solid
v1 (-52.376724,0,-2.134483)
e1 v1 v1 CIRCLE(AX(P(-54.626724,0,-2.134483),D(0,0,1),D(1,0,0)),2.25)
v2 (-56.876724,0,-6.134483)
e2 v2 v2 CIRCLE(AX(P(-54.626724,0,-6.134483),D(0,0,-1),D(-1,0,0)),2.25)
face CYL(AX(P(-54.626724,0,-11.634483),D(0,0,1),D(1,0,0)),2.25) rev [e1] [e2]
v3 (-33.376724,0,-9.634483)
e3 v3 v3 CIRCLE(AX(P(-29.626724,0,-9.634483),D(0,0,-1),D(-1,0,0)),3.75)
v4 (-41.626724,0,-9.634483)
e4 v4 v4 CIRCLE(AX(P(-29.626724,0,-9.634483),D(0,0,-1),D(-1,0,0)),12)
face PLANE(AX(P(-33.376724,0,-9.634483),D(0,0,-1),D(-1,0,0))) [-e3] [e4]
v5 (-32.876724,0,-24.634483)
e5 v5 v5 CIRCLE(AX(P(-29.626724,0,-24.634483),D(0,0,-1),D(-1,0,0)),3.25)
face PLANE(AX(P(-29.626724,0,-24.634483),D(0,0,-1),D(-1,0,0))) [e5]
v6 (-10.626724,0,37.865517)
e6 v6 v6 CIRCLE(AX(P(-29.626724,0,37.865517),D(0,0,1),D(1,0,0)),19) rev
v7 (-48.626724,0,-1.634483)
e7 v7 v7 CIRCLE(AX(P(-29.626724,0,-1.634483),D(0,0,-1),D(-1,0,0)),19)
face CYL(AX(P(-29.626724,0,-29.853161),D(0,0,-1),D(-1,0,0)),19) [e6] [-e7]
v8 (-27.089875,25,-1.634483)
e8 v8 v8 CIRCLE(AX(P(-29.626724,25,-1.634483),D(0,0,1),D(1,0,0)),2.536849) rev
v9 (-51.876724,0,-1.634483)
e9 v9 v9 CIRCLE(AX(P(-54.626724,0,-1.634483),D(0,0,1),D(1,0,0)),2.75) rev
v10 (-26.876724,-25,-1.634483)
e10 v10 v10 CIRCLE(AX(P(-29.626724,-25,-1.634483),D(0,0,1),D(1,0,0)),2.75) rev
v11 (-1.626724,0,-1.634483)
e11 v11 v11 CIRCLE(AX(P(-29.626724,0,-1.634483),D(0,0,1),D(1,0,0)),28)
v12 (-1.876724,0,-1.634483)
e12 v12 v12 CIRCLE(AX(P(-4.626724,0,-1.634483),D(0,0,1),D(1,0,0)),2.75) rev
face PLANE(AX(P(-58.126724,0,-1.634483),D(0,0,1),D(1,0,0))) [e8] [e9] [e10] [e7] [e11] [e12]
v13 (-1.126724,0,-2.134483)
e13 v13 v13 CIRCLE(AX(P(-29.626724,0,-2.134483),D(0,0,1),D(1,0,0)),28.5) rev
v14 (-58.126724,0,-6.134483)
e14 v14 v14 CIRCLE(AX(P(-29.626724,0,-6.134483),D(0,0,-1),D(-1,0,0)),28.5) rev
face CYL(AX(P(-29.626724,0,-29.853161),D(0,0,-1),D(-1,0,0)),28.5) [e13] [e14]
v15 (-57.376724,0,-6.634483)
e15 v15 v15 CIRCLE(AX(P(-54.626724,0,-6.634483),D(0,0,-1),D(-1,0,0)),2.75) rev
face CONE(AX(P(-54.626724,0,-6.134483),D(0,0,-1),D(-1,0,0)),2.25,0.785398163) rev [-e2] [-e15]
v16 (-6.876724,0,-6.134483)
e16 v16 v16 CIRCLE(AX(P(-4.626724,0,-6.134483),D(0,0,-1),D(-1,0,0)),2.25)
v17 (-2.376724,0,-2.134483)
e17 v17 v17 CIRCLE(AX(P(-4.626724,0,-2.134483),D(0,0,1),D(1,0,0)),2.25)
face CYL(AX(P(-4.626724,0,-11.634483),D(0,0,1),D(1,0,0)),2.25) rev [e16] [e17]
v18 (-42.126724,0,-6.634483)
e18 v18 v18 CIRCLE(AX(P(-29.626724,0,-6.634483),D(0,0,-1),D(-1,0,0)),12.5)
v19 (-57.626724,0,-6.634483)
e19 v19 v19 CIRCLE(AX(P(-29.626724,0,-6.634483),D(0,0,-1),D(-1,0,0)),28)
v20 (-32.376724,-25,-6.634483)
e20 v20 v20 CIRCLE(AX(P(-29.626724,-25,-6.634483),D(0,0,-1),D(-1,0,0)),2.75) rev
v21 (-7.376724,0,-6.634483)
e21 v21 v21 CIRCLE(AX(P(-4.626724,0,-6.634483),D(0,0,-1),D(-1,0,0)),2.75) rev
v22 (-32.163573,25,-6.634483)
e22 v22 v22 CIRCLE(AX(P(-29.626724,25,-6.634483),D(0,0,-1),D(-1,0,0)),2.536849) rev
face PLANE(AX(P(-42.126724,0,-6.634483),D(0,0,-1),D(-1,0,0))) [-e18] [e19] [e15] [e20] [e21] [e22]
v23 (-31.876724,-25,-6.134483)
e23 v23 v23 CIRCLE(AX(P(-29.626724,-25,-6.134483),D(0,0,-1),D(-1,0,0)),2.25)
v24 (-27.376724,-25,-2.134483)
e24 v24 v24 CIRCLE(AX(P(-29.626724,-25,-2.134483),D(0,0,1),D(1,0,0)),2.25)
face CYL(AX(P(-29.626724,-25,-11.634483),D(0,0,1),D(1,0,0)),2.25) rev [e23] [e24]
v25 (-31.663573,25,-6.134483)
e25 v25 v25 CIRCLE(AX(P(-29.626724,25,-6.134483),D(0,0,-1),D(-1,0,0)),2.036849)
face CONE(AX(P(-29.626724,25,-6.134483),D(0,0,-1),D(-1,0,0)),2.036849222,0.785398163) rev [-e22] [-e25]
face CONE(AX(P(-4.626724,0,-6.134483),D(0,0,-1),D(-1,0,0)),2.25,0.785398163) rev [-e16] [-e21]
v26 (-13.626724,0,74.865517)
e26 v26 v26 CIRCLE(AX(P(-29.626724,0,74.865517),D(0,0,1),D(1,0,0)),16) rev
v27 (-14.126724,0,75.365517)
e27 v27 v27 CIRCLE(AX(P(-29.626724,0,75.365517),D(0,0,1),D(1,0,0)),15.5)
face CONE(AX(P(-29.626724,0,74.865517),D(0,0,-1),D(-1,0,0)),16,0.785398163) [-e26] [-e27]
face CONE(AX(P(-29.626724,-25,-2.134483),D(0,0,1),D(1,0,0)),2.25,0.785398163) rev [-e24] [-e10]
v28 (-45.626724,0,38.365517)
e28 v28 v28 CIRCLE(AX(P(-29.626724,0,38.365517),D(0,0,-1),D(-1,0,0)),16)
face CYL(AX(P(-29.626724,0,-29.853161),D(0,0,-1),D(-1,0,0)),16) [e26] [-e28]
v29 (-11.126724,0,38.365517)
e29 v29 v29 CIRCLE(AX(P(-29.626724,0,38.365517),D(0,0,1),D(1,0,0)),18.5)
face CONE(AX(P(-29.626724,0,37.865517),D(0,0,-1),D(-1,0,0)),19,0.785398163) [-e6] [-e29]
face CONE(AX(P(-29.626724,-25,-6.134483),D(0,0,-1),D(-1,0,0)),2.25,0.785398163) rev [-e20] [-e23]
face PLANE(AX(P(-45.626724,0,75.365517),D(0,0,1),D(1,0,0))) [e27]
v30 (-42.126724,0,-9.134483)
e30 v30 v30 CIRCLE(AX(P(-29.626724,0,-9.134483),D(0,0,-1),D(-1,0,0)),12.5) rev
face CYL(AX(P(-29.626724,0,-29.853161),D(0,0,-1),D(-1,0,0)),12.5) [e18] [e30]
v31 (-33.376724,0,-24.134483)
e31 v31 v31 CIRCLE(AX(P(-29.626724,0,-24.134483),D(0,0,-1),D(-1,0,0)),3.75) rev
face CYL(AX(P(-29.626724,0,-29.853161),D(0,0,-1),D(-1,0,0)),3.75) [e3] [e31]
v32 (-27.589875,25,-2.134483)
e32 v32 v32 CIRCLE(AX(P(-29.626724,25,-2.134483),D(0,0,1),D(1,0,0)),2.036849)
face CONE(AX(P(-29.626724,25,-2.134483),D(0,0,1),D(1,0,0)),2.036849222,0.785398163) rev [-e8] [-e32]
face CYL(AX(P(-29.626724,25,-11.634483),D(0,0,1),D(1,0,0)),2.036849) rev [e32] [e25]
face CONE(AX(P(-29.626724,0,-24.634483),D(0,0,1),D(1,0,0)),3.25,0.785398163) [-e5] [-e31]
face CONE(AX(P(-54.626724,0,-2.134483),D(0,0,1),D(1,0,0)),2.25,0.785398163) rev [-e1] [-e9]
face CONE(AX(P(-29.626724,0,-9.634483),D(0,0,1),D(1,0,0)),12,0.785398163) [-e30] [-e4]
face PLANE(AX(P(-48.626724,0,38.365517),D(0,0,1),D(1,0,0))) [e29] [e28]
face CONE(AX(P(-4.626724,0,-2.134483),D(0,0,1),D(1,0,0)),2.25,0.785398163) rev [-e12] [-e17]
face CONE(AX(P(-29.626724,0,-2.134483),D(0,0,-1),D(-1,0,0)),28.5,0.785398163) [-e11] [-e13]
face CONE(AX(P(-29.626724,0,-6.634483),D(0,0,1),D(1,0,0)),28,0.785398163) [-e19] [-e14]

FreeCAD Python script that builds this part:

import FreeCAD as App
import Part
import Sketcher
from FreeCAD import Vector
Q = App.Units.Quantity


def edges_at(feature, points):
    """Names of the edges that pass closest to the given points."""
    edges = feature.Shape.Edges
    near = lambda p: min(range(len(edges)), key=lambda i: edges[i].distToShape(Part.Vertex(*p))[0])
    return sorted({f"Edge{near(p) + 1}" for p in points})

doc = App.newDocument("Part")
body = doc.addObject("PartDesign::Body", "Body")

# Sketch on XZ plane
sketch1 = body.newObject("Sketcher::SketchObject", "Sketch")
sketch1.AttachmentSupport = (doc.getObject("XZ_Plane"), [""])
sketch1.MapMode = "FlatFace"
sketch1.addGeometry(Part.LineSegment(Vector(-29.6, -24.6, 0), Vector(-33.4, -24.6, 0)), False)
sketch1.addGeometry(Part.LineSegment(Vector(-33.4, -24.6, 0), Vector(-33.4, -9.6, 0)), False)
sketch1.addGeometry(Part.LineSegment(Vector(-33.4, -9.6, 0), Vector(-42.1, -9.6, 0)), False)
sketch1.addGeometry(Part.LineSegment(Vector(-42.1, -9.6, 0), Vector(-42.1, -6.6, 0)), False)
sketch1.addGeometry(Part.LineSegment(Vector(-42.1, -6.6, 0), Vector(-58.1, -6.6, 0)), False)
sketch1.addGeometry(Part.LineSegment(Vector(-58.1, -6.6, 0), Vector(-58.1, -1.6, 0)), False)
sketch1.addGeometry(Part.LineSegment(Vector(-58.1, -1.6, 0), Vector(-48.6, -1.6, 0)), False)
sketch1.addGeometry(Part.LineSegment(Vector(-48.6, -1.6, 0), Vector(-48.6, 38.4, 0)), False)
sketch1.addGeometry(Part.LineSegment(Vector(-48.6, 38.4, 0), Vector(-45.6, 38.4, 0)), False)
sketch1.addGeometry(Part.LineSegment(Vector(-45.6, 38.4, 0), Vector(-45.6, 75.4, 0)), False)
sketch1.addGeometry(Part.LineSegment(Vector(-45.6, 75.4, 0), Vector(-29.6, 75.4, 0)), False)
sketch1.addGeometry(Part.LineSegment(Vector(-29.6, 75.4, 0), Vector(-29.6, -24.6, 0)), False)
sketch1.addGeometry(Part.LineSegment(Vector(-29.6, -24.6, 0), Vector(-29.6, 75.4, 0)), True)  # axis
sketch1.addConstraint(Sketcher.Constraint("Coincident", 0, 2, 1, 1))
sketch1.addConstraint(Sketcher.Constraint("Coincident", 1, 2, 2, 1))
sketch1.addConstraint(Sketcher.Constraint("Coincident", 2, 2, 3, 1))
sketch1.addConstraint(Sketcher.Constraint("Coincident", 3, 2, 4, 1))
sketch1.addConstraint(Sketcher.Constraint("Coincident", 4, 2, 5, 1))
sketch1.addConstraint(Sketcher.Constraint("Coincident", 5, 2, 6, 1))
sketch1.addConstraint(Sketcher.Constraint("Coincident", 6, 2, 7, 1))
sketch1.addConstraint(Sketcher.Constraint("Coincident", 7, 2, 8, 1))
sketch1.addConstraint(Sketcher.Constraint("Coincident", 8, 2, 9, 1))
sketch1.addConstraint(Sketcher.Constraint("Coincident", 9, 2, 10, 1))
sketch1.addConstraint(Sketcher.Constraint("Coincident", 10, 2, 11, 1))
sketch1.addConstraint(Sketcher.Constraint("Coincident", 11, 2, 0, 1))
sketch1.addConstraint(Sketcher.Constraint("Horizontal", 0))
sketch1.addConstraint(Sketcher.Constraint("Vertical", 1))
sketch1.addConstraint(Sketcher.Constraint("Horizontal", 2))
sketch1.addConstraint(Sketcher.Constraint("Vertical", 3))
sketch1.addConstraint(Sketcher.Constraint("Horizontal", 4))
sketch1.addConstraint(Sketcher.Constraint("Vertical", 5))
sketch1.addConstraint(Sketcher.Constraint("Horizontal", 6))
sketch1.addConstraint(Sketcher.Constraint("Vertical", 7))
sketch1.addConstraint(Sketcher.Constraint("Horizontal", 8))
sketch1.addConstraint(Sketcher.Constraint("Vertical", 9))
sketch1.addConstraint(Sketcher.Constraint("Horizontal", 10))
sketch1.addConstraint(Sketcher.Constraint("Vertical", 11))
sketch1.addConstraint(Sketcher.Constraint("Vertical", 12))
sketch1.addConstraint(Sketcher.Constraint("Coincident", 12, 1, 11, 2))
sketch1.addConstraint(Sketcher.Constraint("Horizontal", 9, 2, 12, 2))
sketch1.addConstraint(Sketcher.Constraint("Equal", 4, 10))
sketch1.addConstraint(Sketcher.Constraint("Equal", 8, 3))
sketch1.addConstraint(Sketcher.Constraint("DistanceX", 4, 2, 4, 1, Q("16 mm")))
sketch1.addConstraint(Sketcher.Constraint("DistanceX", 8, 1, 8, 2, Q("3 mm")))
sketch1.addConstraint(Sketcher.Constraint("DistanceY", 1, 1, 1, 2, Q("15 mm")))
sketch1.addConstraint(Sketcher.Constraint("DistanceY", 5, 1, 5, 2, Q("5 mm")))
sketch1.addConstraint(Sketcher.Constraint("DistanceY", 7, 1, 7, 2, Q("40 mm")))
sketch1.addConstraint(Sketcher.Constraint("DistanceY", 9, 1, 9, 2, Q("37 mm")))
sketch1.addConstraint(Sketcher.Constraint("DistanceX", 6, 1, 6, 2, Q("9.5 mm")))
sketch1.addConstraint(Sketcher.Constraint("DistanceX", 0, 2, 0, 1, Q("3.75 mm")))
sketch1.addConstraint(Sketcher.Constraint("DistanceX", 0, 2, -1, 1, Q("33.376724 mm")))
sketch1.addConstraint(Sketcher.Constraint("DistanceY", 0, 2, -1, 1, Q("24.634483 mm")))
revolution = body.newObject("PartDesign::Revolution", "Revolution")
revolution.Profile = sketch1
revolution.ReferenceAxis = (sketch1, ["Axis0"])
revolution.Angle = 360

# Sketch on XY plane
sketch2 = body.newObject("Sketcher::SketchObject", "Sketch001")
sketch2.AttachmentSupport = (doc.getObject("XY_Plane"), [""])
sketch2.MapMode = "FlatFace"
sketch2.AttachmentOffset = App.Placement(Vector(0, 0, -1.634483), App.Rotation())
sketch2.addGeometry(Part.Circle(Vector(-4.6, 0, 0), Vector(0, 0, 1), 2.2), False)
sketch2.addGeometry(Part.Circle(Vector(-29.6, 25, 0), Vector(0, 0, 1), 2), False)
sketch2.addGeometry(Part.Circle(Vector(-54.6, 0, 0), Vector(0, 0, 1), 2.2), False)
sketch2.addGeometry(Part.Circle(Vector(-29.6, -25, 0), Vector(0, 0, 1), 2.2), False)
sketch2.addConstraint(Sketcher.Constraint("Equal", 0, 2))
sketch2.addConstraint(Sketcher.Constraint("Equal", 2, 3))
sketch2.addConstraint(Sketcher.Constraint("Symmetric", 1, 3, 3, 3, -1))
sketch2.addConstraint(Sketcher.Constraint("PointOnObject", 0, 3, -1))
sketch2.addConstraint(Sketcher.Constraint("PointOnObject", 2, 3, -1))
sketch2.addConstraint(Sketcher.Constraint("Diameter", 0, Q("4.5 mm")))
sketch2.addConstraint(Sketcher.Constraint("DistanceY", -1, 1, 1, 3, Q("25 mm")))
sketch2.addConstraint(Sketcher.Constraint("DistanceX", 1, 3, 0, 3, Q("25 mm")))
sketch2.addConstraint(Sketcher.Constraint("DistanceX", 2, 3, 1, 3, Q("25 mm")))
sketch2.addConstraint(Sketcher.Constraint("Diameter", 1, Q("4.073698 mm")))
sketch2.addConstraint(Sketcher.Constraint("DistanceX", 0, 3, -1, 1, Q("4.626724 mm")))
pocket1 = body.newObject("PartDesign::Pocket", "Pocket")
pocket1.Profile = sketch2
pocket1.Length = 10
doc.recompute()

chamfer = body.newObject("PartDesign::Chamfer", "Chamfer")
chamfer.Base = (pocket1, edges_at(pocket1, [
    (-6.877, 0, -6.634),
    (-6.877, 0, -1.634),
    (-31.664, 25, -6.634),
    (-31.664, 25, -1.634),
    (-56.877, 0, -6.634),
    (-56.877, 0, -1.634),
    (-31.877, -25, -6.634),
    (-31.877, -25, -1.634),
    (-25.877, 0, -24.634),
    (-17.127, 0, -9.634),
    (-1.127, 0, -6.634),
    (-1.127, 0, -1.634),
]))
chamfer.Size = 0.5
doc.recompute()

chamfer2 = body.newObject("PartDesign::Chamfer", "Chamfer001")
chamfer2.Base = (chamfer, edges_at(chamfer, [(-10.627, 0, 38.366), (-13.627, 0, 75.366)]))
chamfer2.Size = 0.5

doc.recompute()
